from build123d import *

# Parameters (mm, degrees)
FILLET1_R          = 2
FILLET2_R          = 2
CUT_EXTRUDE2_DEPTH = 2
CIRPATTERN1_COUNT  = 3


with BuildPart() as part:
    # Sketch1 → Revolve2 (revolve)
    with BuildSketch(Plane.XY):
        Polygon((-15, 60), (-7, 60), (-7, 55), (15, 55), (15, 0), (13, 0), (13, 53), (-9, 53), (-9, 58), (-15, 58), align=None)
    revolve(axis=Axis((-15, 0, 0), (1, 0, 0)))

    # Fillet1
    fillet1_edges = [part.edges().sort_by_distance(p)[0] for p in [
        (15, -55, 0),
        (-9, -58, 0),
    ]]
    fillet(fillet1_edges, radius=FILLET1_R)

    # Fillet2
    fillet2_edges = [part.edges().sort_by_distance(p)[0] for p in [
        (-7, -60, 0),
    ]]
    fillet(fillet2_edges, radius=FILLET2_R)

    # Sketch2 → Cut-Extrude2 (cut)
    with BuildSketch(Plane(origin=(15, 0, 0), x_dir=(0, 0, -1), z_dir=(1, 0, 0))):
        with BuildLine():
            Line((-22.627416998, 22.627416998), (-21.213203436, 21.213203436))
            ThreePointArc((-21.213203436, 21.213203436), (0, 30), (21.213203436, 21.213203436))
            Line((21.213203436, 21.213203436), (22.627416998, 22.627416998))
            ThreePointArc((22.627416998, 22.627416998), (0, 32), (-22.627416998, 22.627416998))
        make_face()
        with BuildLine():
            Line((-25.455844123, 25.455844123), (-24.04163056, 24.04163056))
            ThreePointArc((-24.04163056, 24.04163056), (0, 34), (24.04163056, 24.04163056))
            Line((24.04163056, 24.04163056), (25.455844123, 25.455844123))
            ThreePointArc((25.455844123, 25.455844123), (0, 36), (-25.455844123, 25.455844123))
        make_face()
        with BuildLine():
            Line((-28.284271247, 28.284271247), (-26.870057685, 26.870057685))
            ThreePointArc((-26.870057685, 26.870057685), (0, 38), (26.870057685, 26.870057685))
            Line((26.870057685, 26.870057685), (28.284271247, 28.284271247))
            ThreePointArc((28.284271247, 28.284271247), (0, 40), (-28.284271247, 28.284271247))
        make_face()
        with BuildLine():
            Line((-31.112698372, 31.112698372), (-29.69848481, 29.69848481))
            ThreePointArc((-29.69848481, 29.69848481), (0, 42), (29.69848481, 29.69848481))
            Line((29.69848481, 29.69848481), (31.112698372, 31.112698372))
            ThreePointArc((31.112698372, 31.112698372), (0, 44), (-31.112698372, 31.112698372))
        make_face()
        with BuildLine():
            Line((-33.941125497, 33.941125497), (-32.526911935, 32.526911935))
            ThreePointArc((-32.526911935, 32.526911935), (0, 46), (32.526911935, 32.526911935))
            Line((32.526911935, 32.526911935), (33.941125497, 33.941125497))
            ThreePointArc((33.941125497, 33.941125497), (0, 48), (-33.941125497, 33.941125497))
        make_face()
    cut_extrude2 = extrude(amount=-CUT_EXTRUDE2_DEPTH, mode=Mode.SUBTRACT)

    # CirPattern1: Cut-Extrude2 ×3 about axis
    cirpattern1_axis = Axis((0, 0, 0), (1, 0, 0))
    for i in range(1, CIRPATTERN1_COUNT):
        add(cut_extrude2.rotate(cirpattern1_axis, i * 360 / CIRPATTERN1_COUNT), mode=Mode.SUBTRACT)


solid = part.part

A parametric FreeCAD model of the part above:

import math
import FreeCAD as App
import Part
import Sketcher
from FreeCAD import Vector
Q = App.Units.Quantity


def edges_at(feature, points):
    """Names of the edges that pass closest to the given points."""
    edges = feature.Shape.Edges
    near = lambda p: min(range(len(edges)), key=lambda i: edges[i].distToShape(Part.Vertex(*p))[0])
    return sorted({f"Edge{near(p) + 1}" for p in points})


def add_polygon(sketch, points):
    """Adds a closed chain of lines whose ends are joined by coincident constraints."""
    first, n = sketch.GeometryCount, len(points)
    for a, b in zip(points, points[1:] + points[:1]):
        sketch.addGeometry(Part.LineSegment(App.Vector(*a, 0), App.Vector(*b, 0)), False)
    for i in range(n):
        sketch.addConstraint(Sketcher.Constraint("Coincident", first + i, 2, first + (i + 1) % n, 1))

doc = App.newDocument("Part")
body = doc.addObject("PartDesign::Body", "Body")

# Sketch on XY plane
sketch1 = body.newObject("Sketcher::SketchObject", "Sketch")
sketch1.AttachmentSupport = (doc.getObject("XY_Plane"), [""])
sketch1.MapMode = "FlatFace"
add_polygon(sketch1, [(-7, 60), (-15, 60), (-15, 58), (-9, 58), (-9, 53), (13, 53), (13, 0), (15, 0), (15, 55), (-7, 55)])  # lines 0-9
sketch1.addConstraint(Sketcher.Constraint("Horizontal", 0))
sketch1.addConstraint(Sketcher.Constraint("Vertical", 1))
sketch1.addConstraint(Sketcher.Constraint("Horizontal", 2))
sketch1.addConstraint(Sketcher.Constraint("Vertical", 3))
sketch1.addConstraint(Sketcher.Constraint("Horizontal", 4))
sketch1.addConstraint(Sketcher.Constraint("Vertical", 5))
sketch1.addConstraint(Sketcher.Constraint("Horizontal", 6))
sketch1.addConstraint(Sketcher.Constraint("Vertical", 7))
sketch1.addConstraint(Sketcher.Constraint("Horizontal", 8))
sketch1.addConstraint(Sketcher.Constraint("Vertical", 9))
sketch1.addConstraint(Sketcher.Constraint("PointOnObject", 5, 2, -1))
sketch1.addConstraint(Sketcher.Constraint("Equal", 4, 8))
sketch1.addConstraint(Sketcher.Constraint("Equal", 6, 1))
sketch1.addConstraint(Sketcher.Constraint("Equal", 3, 9))
sketch1.addConstraint(Sketcher.Constraint("DistanceX", 0, 2, 0, 1, Q("8 mm")))
sketch1.addConstraint(Sketcher.Constraint("DistanceX", 2, 1, 2, 2, Q("6 mm")))
sketch1.addConstraint(Sketcher.Constraint("DistanceX", 4, 1, 4, 2, Q("22 mm")))
sketch1.addConstraint(Sketcher.Constraint("DistanceY", 3, 2, 3, 1, Q("5 mm")))
sketch1.addConstraint(Sketcher.Constraint("DistanceY", 5, 2, 5, 1, Q("53 mm")))
sketch1.addConstraint(Sketcher.Constraint("DistanceX", 0, 2, -1, 1, Q("15 mm")))
revolution = body.newObject("PartDesign::Revolution", "Revolution")
revolution.Profile = sketch1
revolution.ReferenceAxis = (sketch1, ["H_Axis"])
revolution.Angle = 360
doc.recompute()

fillet = body.newObject("PartDesign::Fillet", "Fillet")
fillet.Base = (revolution, edges_at(revolution, [(15, -55, 0), (-9, -58, 0)]))
fillet.Radius = 2
doc.recompute()

fillet2 = body.newObject("PartDesign::Fillet", "Fillet001")
fillet2.Base = (fillet, edges_at(fillet, [(-7, -60, 0)]))
fillet2.Radius = 2

# Sketch on YZ plane
sketch2 = body.newObject("Sketcher::SketchObject", "Sketch001")
sketch2.AttachmentSupport = (doc.getObject("YZ_Plane"), [""])
sketch2.MapMode = "FlatFace"
sketch2.AttachmentOffset = App.Placement(Vector(0, 0, 15), App.Rotation())
sketch2.addGeometry(Part.LineSegment(Vector(22.627417, 22.627417, 0), Vector(21.213203, 21.213203, 0)), False)
sketch2.addGeometry(Part.ArcOfCircle(Part.Circle(Vector(0, 0, 0), Vector(0, 0, 1), 30), math.radians(-45), math.radians(45)), False)
sketch2.addGeometry(Part.LineSegment(Vector(21.213203, -21.213203, 0), Vector(22.627417, -22.627417, 0)), False)
sketch2.addGeometry(Part.ArcOfCircle(Part.Circle(Vector(0, 0, 0), Vector(0, 0, 1), 32), math.radians(-45), math.radians(45)), False)
sketch2.addGeometry(Part.LineSegment(Vector(25.455844, 25.455844, 0), Vector(24.041631, 24.041631, 0)), False)
sketch2.addGeometry(Part.ArcOfCircle(Part.Circle(Vector(0, 0, 0), Vector(0, 0, 1), 34), math.radians(-45), math.radians(45)), False)
sketch2.addGeometry(Part.LineSegment(Vector(24.041631, -24.041631, 0), Vector(25.455844, -25.455844, 0)), False)
sketch2.addGeometry(Part.ArcOfCircle(Part.Circle(Vector(0, 0, 0), Vector(0, 0, 1), 36), math.radians(-45), math.radians(45)), False)
sketch2.addGeometry(Part.LineSegment(Vector(28.284271, 28.284271, 0), Vector(26.870058, 26.870058, 0)), False)
sketch2.addGeometry(Part.ArcOfCircle(Part.Circle(Vector(0, 0, 0), Vector(0, 0, 1), 38), math.radians(-45), math.radians(45)), False)
sketch2.addGeometry(Part.LineSegment(Vector(26.870058, -26.870058, 0), Vector(28.284271, -28.284271, 0)), False)
sketch2.addGeometry(Part.ArcOfCircle(Part.Circle(Vector(0, 0, 0), Vector(0, 0, 1), 40), math.radians(-45), math.radians(45)), False)
sketch2.addGeometry(Part.LineSegment(Vector(31.112698, 31.112698, 0), Vector(29.698485, 29.698485, 0)), False)
sketch2.addGeometry(Part.ArcOfCircle(Part.Circle(Vector(0, 0, 0), Vector(0, 0, 1), 42), math.radians(-45), math.radians(45)), False)
sketch2.addGeometry(Part.LineSegment(Vector(29.698485, -29.698485, 0), Vector(31.112698, -31.112698, 0)), False)
sketch2.addGeometry(Part.ArcOfCircle(Part.Circle(Vector(0, 0, 0), Vector(0, 0, 1), 44), math.radians(-45), math.radians(45)), False)
sketch2.addGeometry(Part.LineSegment(Vector(33.941125, 33.941125, 0), Vector(32.526912, 32.526912, 0)), False)
sketch2.addGeometry(Part.ArcOfCircle(Part.Circle(Vector(0, 0, 0), Vector(0, 0, 1), 46), math.radians(-45), math.radians(45)), False)
sketch2.addGeometry(Part.LineSegment(Vector(32.526912, -32.526912, 0), Vector(33.941125, -33.941125, 0)), False)
sketch2.addGeometry(Part.ArcOfCircle(Part.Circle(Vector(0, 0, 0), Vector(0, 0, 1), 48), math.radians(-45), math.radians(45)), False)
sketch2.addConstraint(Sketcher.Constraint("Coincident", 0, 2, 1, 2))
sketch2.addConstraint(Sketcher.Constraint("Coincident", 1, 1, 2, 1))
sketch2.addConstraint(Sketcher.Constraint("Coincident", 2, 2, 3, 1))
sketch2.addConstraint(Sketcher.Constraint("Coincident", 3, 2, 0, 1))
sketch2.addConstraint(Sketcher.Constraint("Coincident", 4, 2, 5, 2))
sketch2.addConstraint(Sketcher.Constraint("Coincident", 5, 1, 6, 1))
sketch2.addConstraint(Sketcher.Constraint("Coincident", 6, 2, 7, 1))
sketch2.addConstraint(Sketcher.Constraint("Coincident", 7, 2, 4, 1))
sketch2.addConstraint(Sketcher.Constraint("Coincident", 8, 2, 9, 2))
sketch2.addConstraint(Sketcher.Constraint("Coincident", 9, 1, 10, 1))
sketch2.addConstraint(Sketcher.Constraint("Coincident", 10, 2, 11, 1))
sketch2.addConstraint(Sketcher.Constraint("Coincident", 11, 2, 8, 1))
sketch2.addConstraint(Sketcher.Constraint("Coincident", 12, 2, 13, 2))
sketch2.addConstraint(Sketcher.Constraint("Coincident", 13, 1, 14, 1))
sketch2.addConstraint(Sketcher.Constraint("Coincident", 14, 2, 15, 1))
sketch2.addConstraint(Sketcher.Constraint("Coincident", 15, 2, 12, 1))
sketch2.addConstraint(Sketcher.Constraint("Coincident", 16, 2, 17, 2))
sketch2.addConstraint(Sketcher.Constraint("Coincident", 17, 1, 18, 1))
sketch2.addConstraint(Sketcher.Constraint("Coincident", 18, 2, 19, 1))
sketch2.addConstraint(Sketcher.Constraint("Coincident", 19, 2, 16, 1))
sketch2.addConstraint(Sketcher.Constraint("Coincident", 1, 3, -1, 1))
sketch2.addConstraint(Sketcher.Constraint("Coincident", 3, 3, -1, 1))
sketch2.addConstraint(Sketcher.Constraint("Coincident", 5, 3, -1, 1))
sketch2.addConstraint(Sketcher.Constraint("Coincident", 7, 3, -1, 1))
sketch2.addConstraint(Sketcher.Constraint("Coincident", 9, 3, -1, 1))
sketch2.addConstraint(Sketcher.Constraint("Coincident", 11, 3, -1, 1))
sketch2.addConstraint(Sketcher.Constraint("Coincident", 13, 3, -1, 1))
sketch2.addConstraint(Sketcher.Constraint("Coincident", 15, 3, -1, 1))
sketch2.addConstraint(Sketcher.Constraint("Coincident", 17, 3, -1, 1))
sketch2.addConstraint(Sketcher.Constraint("Coincident", 19, 3, -1, 1))
sketch2.addConstraint(Sketcher.Constraint("Perpendicular", 0, 2))
sketch2.addConstraint(Sketcher.Constraint("Perpendicular", 2, 4))
sketch2.addConstraint(Sketcher.Constraint("Perpendicular", 4, 6))
sketch2.addConstraint(Sketcher.Constraint("Perpendicular", 6, 8))
sketch2.addConstraint(Sketcher.Constraint("Perpendicular", 8, 10))
sketch2.addConstraint(Sketcher.Constraint("Perpendicular", 10, 12))
sketch2.addConstraint(Sketcher.Constraint("Perpendicular", 12, 14))
sketch2.addConstraint(Sketcher.Constraint("Perpendicular", 14, 16))
sketch2.addConstraint(Sketcher.Constraint("Perpendicular", 16, 18))
sketch2.addConstraint(Sketcher.Constraint("Vertical", 0, 2, 1, 1))
sketch2.addConstraint(Sketcher.Constraint("Vertical", 2, 2, 3, 2))
sketch2.addConstraint(Sketcher.Constraint("Vertical", 4, 2, 5, 1))
sketch2.addConstraint(Sketcher.Constraint("Vertical", 8, 2, 9, 1))
sketch2.addConstraint(Sketcher.Constraint("Vertical", 12, 2, 13, 1))
sketch2.addConstraint(Sketcher.Constraint("Vertical", 16, 2, 17, 1))
sketch2.addConstraint(Sketcher.Constraint("Equal", 2, 4))
sketch2.addConstraint(Sketcher.Constraint("Equal", 6, 8))
sketch2.addConstraint(Sketcher.Constraint("Equal", 10, 12))
sketch2.addConstraint(Sketcher.Constraint("Equal", 14, 16))
sketch2.addConstraint(Sketcher.Constraint("Radius", 1, Q("30 mm")))
sketch2.addConstraint(Sketcher.Constraint("Radius", 3, Q("32 mm")))
sketch2.addConstraint(Sketcher.Constraint("Radius", 5, Q("34 mm")))
sketch2.addConstraint(Sketcher.Constraint("Radius", 9, Q("38 mm")))
sketch2.addConstraint(Sketcher.Constraint("Radius", 13, Q("42 mm")))
sketch2.addConstraint(Sketcher.Constraint("Radius", 17, Q("46 mm")))
sketch2.addConstraint(Sketcher.Constraint("DistanceX", -1, 1, 14, 2, Q("31.112698 mm")))
sketch2.addConstraint(Sketcher.Constraint("DistanceX", -1, 1, 4, 2, Q("24.041631 mm")))
sketch2.addConstraint(Sketcher.Constraint("DistanceX", -1, 1, 10, 2, Q("28.284271 mm")))
sketch2.addConstraint(Sketcher.Constraint("DistanceX", -1, 1, 16, 2, Q("32.526912 mm")))
sketch2.addConstraint(Sketcher.Constraint("DistanceX", 1, 1, 6, 2, Q("4.242641 mm")))
pocket1 = body.newObject("PartDesign::Pocket", "Pocket")
pocket1.Profile = sketch2
pocket1.Length = 2
doc.recompute()

polarpattern = body.newObject("PartDesign::PolarPattern", "PolarPattern")
polarpattern.Originals = [pocket1]
polarpattern.Axis = (doc.getObject("X_Axis"), [""])
polarpattern.Angle = 360
polarpattern.Occurrences = 3
body.Tip = polarpattern

doc.recompute()
